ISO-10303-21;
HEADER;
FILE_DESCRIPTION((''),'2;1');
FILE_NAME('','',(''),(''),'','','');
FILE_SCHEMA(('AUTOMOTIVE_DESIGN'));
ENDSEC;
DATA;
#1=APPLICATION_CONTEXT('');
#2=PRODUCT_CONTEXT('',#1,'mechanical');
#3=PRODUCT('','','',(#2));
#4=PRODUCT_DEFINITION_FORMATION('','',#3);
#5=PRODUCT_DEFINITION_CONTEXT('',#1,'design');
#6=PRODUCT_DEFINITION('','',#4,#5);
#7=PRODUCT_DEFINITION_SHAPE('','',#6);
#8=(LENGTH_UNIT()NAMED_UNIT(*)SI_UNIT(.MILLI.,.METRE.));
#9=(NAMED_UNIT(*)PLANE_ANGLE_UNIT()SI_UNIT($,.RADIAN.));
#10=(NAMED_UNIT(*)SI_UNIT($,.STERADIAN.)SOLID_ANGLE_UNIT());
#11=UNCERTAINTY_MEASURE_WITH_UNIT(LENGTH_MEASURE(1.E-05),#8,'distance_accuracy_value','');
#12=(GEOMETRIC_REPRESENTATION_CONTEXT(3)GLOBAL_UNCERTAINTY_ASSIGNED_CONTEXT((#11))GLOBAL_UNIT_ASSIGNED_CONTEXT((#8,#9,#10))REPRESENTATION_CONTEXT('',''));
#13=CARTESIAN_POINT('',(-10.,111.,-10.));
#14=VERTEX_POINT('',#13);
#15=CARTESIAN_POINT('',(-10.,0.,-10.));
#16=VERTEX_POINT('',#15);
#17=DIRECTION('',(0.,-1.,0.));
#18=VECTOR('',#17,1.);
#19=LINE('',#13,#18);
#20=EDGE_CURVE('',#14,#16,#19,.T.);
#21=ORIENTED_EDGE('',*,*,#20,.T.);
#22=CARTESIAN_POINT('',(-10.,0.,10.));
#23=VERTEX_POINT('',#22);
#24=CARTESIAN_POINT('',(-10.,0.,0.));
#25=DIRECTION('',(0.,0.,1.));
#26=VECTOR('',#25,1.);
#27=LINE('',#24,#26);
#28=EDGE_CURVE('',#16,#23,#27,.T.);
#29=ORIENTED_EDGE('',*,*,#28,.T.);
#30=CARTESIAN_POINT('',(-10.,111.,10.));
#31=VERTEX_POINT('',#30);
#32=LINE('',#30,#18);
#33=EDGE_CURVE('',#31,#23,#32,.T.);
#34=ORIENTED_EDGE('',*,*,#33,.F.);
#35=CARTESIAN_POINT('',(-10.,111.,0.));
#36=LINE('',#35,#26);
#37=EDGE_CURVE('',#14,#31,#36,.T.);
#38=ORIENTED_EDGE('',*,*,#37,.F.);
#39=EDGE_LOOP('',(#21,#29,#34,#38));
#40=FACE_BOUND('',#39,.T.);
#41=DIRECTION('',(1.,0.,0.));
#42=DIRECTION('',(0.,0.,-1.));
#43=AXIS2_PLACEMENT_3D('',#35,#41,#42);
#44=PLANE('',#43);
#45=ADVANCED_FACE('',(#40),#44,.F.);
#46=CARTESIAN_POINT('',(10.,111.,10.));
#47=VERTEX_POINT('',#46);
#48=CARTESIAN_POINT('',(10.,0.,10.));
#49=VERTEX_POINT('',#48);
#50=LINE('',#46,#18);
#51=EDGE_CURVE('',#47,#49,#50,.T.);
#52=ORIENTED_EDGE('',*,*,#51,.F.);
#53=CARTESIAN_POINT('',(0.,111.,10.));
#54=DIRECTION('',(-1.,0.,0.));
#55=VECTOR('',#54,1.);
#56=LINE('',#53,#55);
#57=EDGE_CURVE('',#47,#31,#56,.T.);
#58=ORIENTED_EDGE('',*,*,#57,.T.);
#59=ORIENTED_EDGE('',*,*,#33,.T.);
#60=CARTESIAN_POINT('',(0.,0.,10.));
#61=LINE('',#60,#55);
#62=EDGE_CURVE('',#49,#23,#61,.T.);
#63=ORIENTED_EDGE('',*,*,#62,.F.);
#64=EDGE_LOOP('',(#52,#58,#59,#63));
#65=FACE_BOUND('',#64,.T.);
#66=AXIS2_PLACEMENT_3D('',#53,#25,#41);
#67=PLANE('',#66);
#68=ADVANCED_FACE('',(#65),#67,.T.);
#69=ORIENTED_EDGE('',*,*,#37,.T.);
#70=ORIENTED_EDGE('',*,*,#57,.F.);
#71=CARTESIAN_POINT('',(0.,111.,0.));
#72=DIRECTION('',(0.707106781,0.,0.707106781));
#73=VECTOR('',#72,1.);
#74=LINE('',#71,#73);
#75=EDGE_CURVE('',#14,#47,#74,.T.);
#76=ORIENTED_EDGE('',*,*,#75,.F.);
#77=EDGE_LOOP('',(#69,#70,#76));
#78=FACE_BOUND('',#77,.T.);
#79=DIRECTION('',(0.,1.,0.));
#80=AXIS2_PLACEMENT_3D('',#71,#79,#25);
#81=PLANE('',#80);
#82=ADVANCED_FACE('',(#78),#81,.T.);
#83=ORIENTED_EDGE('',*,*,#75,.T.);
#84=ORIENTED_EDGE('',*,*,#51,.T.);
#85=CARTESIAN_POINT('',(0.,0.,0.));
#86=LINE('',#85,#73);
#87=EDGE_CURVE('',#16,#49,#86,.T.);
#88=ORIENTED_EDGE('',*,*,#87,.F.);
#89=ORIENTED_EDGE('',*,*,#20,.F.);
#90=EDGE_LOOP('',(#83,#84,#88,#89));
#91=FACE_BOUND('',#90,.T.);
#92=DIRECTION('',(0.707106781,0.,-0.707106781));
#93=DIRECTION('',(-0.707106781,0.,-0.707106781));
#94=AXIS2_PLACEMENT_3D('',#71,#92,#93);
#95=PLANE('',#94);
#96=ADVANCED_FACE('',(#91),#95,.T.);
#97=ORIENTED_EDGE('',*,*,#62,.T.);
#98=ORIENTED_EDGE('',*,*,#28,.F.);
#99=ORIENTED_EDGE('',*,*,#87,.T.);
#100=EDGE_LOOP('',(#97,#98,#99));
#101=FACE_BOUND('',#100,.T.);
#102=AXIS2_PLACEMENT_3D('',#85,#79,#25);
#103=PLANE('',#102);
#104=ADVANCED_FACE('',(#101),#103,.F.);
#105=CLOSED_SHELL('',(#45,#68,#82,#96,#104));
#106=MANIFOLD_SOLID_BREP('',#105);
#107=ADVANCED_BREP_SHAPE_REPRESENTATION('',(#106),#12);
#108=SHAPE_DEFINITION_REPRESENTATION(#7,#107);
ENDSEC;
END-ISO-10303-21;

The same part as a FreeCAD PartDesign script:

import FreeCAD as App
import Part
import Sketcher

V = App.Vector


def add_polygon(sketch, points):
    """Adds a closed chain of lines whose ends are joined by coincident constraints."""
    first, n = sketch.GeometryCount, len(points)
    for a, b in zip(points, points[1:] + points[:1]):
        sketch.addGeometry(Part.LineSegment(App.Vector(*a, 0), App.Vector(*b, 0)), False)
    for i in range(n):
        sketch.addConstraint(Sketcher.Constraint("Coincident", first + i, 2, first + (i + 1) % n, 1))

doc = App.newDocument("Part")
params = doc.addObject("Spreadsheet::Sheet", "Params")
for row, (alias, value) in enumerate([
    ("sketch1_width", "20 mm"),
    ("pad1_length", "111 mm"),
], start=1):
    params.set(f"A{row}", alias)
    params.set(f"B{row}", "=" + value)
    params.setAlias(f"B{row}", alias)

body = doc.addObject("PartDesign::Body", "Body")

sketch1 = body.newObject("Sketcher::SketchObject", "Sketch")
sketch1.AttachmentSupport = (doc.getObject("XZ_Plane"), [""])
sketch1.MapMode = "FlatFace"
add_polygon(sketch1, [(10, 10), (-10, -10), (-10, 10)])
sketch1.addConstraint([
    Sketcher.Constraint("Vertical", 1),
    Sketcher.Constraint("Horizontal", 2),
    Sketcher.Constraint("Symmetric", 0, 2, 2, 2, -1, 1),
    Sketcher.Constraint("Equal", 2, 1),
    Sketcher.Constraint("DistanceX", 2, 1, 2, 2, 20.0),
])
sketch1.setExpression("Constraints[7]", "Params.sketch1_width")
pad1 = body.newObject("PartDesign::Pad", "Pad")
pad1.Profile = sketch1
pad1.setExpression("Length", "Params.pad1_length")
pad1.Reversed = True

doc.recompute()
